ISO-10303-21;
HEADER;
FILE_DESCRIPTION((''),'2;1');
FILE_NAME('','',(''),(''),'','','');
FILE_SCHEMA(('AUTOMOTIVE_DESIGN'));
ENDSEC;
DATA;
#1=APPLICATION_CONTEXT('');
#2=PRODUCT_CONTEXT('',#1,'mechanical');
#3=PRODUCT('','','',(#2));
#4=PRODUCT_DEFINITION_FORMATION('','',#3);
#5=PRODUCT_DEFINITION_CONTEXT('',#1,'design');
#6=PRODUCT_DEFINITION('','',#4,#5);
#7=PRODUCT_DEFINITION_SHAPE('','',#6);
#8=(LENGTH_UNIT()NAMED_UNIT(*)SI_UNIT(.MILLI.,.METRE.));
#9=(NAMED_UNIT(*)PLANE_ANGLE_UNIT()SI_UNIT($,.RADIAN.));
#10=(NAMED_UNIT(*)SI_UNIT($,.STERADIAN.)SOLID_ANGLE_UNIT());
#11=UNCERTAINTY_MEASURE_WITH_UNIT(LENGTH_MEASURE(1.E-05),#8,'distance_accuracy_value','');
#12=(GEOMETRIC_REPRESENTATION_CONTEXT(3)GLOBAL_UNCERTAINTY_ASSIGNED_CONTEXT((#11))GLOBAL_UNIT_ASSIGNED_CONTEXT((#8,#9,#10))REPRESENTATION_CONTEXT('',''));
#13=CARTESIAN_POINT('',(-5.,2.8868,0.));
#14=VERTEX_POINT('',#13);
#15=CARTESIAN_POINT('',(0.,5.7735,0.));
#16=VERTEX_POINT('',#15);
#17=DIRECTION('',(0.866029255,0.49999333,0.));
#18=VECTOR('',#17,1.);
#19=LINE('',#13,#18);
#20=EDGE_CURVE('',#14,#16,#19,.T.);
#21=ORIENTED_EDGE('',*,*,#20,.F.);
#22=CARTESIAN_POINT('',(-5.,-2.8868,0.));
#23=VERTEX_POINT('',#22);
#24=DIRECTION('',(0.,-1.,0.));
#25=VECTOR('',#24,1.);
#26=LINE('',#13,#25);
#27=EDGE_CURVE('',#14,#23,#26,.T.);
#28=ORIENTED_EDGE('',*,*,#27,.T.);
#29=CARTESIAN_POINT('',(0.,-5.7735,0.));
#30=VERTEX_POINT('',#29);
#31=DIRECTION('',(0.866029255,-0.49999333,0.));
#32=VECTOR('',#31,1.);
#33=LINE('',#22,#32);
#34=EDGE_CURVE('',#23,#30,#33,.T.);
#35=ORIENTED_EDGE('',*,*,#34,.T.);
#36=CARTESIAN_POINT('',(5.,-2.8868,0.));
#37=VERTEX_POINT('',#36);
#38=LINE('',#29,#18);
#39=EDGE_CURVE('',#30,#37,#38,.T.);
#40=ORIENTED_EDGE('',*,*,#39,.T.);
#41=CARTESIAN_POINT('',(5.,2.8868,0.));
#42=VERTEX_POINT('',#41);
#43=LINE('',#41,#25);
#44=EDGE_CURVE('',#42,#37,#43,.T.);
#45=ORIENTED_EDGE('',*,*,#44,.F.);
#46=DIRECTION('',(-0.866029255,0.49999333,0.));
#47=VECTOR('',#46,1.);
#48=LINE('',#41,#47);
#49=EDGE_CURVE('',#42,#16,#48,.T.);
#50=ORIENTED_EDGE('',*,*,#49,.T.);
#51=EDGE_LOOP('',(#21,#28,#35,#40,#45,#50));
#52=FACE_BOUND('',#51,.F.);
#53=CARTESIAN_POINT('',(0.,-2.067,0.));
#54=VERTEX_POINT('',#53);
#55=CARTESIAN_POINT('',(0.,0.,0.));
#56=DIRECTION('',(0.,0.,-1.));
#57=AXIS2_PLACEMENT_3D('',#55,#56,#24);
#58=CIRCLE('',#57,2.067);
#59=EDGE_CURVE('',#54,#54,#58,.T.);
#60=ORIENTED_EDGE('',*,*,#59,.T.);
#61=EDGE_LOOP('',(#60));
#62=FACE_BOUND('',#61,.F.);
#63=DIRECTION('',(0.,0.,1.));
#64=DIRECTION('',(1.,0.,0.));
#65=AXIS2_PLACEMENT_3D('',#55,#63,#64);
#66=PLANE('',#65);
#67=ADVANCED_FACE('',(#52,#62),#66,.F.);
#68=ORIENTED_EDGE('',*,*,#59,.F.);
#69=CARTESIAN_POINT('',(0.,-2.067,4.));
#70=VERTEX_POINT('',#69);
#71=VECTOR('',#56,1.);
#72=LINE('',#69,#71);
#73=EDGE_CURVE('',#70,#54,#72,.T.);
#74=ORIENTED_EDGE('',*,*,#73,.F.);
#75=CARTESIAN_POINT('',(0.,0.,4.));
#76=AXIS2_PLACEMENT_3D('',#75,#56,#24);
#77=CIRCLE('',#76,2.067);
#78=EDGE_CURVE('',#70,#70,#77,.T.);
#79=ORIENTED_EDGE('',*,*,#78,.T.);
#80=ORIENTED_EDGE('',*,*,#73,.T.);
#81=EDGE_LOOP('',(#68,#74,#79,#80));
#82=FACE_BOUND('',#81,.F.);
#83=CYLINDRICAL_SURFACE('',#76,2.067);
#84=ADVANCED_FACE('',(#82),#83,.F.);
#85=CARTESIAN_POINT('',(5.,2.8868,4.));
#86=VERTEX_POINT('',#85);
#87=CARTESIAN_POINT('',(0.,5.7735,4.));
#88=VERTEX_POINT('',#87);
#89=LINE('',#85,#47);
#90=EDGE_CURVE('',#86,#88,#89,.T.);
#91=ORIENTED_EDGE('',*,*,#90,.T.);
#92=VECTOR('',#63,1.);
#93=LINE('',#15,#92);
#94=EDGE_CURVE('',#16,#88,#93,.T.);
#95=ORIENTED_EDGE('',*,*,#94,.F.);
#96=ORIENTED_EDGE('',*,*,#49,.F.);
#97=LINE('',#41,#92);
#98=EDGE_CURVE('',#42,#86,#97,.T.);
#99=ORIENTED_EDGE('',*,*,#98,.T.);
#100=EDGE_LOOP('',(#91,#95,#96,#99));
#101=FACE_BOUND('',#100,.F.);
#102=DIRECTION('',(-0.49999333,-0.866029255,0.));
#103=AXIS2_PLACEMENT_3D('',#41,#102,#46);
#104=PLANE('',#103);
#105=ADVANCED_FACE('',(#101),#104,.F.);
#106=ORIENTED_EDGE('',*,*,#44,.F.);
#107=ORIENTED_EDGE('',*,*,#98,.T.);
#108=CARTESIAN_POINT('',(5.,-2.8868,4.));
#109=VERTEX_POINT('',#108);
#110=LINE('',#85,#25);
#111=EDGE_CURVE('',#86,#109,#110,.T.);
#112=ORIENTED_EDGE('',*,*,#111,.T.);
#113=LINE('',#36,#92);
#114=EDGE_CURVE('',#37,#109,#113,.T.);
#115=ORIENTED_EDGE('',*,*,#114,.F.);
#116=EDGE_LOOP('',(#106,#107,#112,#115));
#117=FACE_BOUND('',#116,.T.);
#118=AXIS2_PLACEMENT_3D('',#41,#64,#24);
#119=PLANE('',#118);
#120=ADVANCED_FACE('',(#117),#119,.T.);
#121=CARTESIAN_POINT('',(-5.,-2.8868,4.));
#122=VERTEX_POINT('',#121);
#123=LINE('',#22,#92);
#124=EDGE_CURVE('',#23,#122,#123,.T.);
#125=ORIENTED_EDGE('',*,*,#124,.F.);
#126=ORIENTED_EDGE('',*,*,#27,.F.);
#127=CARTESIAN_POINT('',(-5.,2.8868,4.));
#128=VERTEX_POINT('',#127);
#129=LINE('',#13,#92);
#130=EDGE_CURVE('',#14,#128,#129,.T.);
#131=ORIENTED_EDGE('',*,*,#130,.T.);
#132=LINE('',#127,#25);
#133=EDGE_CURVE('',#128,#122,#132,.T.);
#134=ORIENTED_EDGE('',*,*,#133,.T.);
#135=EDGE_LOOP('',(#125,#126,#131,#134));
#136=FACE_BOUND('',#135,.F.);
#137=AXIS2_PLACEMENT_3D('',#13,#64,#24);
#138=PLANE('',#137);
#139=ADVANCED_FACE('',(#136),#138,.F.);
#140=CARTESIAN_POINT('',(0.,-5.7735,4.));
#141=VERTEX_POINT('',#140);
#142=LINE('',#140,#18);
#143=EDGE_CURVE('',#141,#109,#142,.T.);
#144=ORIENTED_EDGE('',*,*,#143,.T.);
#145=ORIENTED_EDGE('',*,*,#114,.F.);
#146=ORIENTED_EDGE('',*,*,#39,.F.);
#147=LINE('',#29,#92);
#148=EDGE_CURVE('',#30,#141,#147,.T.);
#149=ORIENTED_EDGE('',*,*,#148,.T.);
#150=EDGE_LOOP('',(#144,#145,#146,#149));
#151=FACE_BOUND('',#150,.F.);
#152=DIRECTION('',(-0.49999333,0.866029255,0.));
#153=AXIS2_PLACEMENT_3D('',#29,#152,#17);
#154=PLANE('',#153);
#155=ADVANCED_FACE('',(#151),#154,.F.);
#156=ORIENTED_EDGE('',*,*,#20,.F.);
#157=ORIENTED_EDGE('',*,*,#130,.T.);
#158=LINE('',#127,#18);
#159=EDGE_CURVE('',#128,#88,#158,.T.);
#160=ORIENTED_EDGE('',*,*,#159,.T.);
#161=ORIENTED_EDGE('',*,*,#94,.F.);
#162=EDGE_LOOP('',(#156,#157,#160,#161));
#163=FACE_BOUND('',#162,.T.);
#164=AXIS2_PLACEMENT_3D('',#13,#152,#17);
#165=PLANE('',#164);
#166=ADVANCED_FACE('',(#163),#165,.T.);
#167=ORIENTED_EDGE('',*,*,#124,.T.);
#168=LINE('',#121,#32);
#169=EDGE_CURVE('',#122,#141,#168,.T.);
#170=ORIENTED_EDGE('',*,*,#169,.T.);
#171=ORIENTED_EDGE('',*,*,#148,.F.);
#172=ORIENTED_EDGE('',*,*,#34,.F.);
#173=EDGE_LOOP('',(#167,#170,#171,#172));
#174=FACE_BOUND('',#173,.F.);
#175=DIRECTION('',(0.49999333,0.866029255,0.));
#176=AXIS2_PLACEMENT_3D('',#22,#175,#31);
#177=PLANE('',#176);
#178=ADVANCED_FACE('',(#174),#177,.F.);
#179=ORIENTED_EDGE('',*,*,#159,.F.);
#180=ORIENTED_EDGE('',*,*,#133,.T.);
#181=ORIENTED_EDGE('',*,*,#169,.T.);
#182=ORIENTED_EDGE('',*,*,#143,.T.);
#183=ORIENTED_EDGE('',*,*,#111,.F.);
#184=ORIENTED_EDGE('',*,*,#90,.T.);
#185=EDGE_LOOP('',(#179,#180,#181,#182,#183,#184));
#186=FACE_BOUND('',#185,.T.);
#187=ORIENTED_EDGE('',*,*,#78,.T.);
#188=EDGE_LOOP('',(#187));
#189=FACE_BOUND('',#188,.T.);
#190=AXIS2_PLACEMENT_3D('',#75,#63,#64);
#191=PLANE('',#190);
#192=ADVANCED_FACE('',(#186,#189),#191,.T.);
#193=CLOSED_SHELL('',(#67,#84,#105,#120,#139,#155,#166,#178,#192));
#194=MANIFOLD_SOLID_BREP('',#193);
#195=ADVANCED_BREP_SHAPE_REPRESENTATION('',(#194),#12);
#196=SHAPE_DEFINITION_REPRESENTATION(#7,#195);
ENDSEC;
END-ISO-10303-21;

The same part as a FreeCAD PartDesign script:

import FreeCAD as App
import Part
import Sketcher
from FreeCAD import Vector
Q = App.Units.Quantity


def add_polygon(sketch, points):
    """Adds a closed chain of lines whose ends are joined by coincident constraints."""
    first, n = sketch.GeometryCount, len(points)
    for a, b in zip(points, points[1:] + points[:1]):
        sketch.addGeometry(Part.LineSegment(App.Vector(*a, 0), App.Vector(*b, 0)), False)
    for i in range(n):
        sketch.addConstraint(Sketcher.Constraint("Coincident", first + i, 2, first + (i + 1) % n, 1))

doc = App.newDocument("Part")
body = doc.addObject("PartDesign::Body", "Body")

# Sketch on XY plane
sketch1 = body.newObject("Sketcher::SketchObject", "Sketch")
sketch1.AttachmentSupport = (doc.getObject("XY_Plane"), [""])
sketch1.MapMode = "FlatFace"
add_polygon(sketch1, [(5, -3), (5, 3), (0, 6), (-5, 3), (-5, -3), (0, -6)])  # lines 0-5
sketch1.addConstraint([
    Sketcher.Constraint("Vertical", 0),
    Sketcher.Constraint("Vertical", 3),
    Sketcher.Constraint("Symmetric", 0, 2, 3, 2, -1, 1),
    Sketcher.Constraint("Symmetric", 1, 2, 4, 2, -1, 1),
    Sketcher.Constraint("PointOnObject", 1, 2, -2),
    Sketcher.Constraint("Parallel", 2, 5),
    Sketcher.Constraint("Horizontal", 0, 2, 2, 2),
    Sketcher.Constraint("DistanceX", -1, 1, 0, 2, 5.0),
    Sketcher.Constraint("Angle", 1, Q("150.0004 deg")),
    Sketcher.Constraint("DistanceY", 0, 1, 0, 2, 5.7736),
])
pad1 = body.newObject("PartDesign::Pad", "Pad")
pad1.Profile = sketch1
pad1.Length = 4

# Sketch on XY plane
sketch2 = body.newObject("Sketcher::SketchObject", "Sketch001")
sketch2.AttachmentSupport = (doc.getObject("XY_Plane"), [""])
sketch2.MapMode = "FlatFace"
sketch2.AttachmentOffset = App.Placement(Vector(0, 0, 4), App.Rotation())
sketch2.addGeometry(Part.Circle(Vector(0, 0, 0), Vector(0, 0, 1), 2.1), False)
sketch2.addConstraint([
    Sketcher.Constraint("Coincident", 0, 3, -1, 1),
    Sketcher.Constraint("Diameter", 0, 4.134),
])
doc.recompute()
hole = body.newObject("PartDesign::Hole", "Hole")
hole.Profile = sketch2
hole.ThreadType = "None"
hole.Diameter = 4.134
hole.DepthType = "ThroughAll"

doc.recompute()
